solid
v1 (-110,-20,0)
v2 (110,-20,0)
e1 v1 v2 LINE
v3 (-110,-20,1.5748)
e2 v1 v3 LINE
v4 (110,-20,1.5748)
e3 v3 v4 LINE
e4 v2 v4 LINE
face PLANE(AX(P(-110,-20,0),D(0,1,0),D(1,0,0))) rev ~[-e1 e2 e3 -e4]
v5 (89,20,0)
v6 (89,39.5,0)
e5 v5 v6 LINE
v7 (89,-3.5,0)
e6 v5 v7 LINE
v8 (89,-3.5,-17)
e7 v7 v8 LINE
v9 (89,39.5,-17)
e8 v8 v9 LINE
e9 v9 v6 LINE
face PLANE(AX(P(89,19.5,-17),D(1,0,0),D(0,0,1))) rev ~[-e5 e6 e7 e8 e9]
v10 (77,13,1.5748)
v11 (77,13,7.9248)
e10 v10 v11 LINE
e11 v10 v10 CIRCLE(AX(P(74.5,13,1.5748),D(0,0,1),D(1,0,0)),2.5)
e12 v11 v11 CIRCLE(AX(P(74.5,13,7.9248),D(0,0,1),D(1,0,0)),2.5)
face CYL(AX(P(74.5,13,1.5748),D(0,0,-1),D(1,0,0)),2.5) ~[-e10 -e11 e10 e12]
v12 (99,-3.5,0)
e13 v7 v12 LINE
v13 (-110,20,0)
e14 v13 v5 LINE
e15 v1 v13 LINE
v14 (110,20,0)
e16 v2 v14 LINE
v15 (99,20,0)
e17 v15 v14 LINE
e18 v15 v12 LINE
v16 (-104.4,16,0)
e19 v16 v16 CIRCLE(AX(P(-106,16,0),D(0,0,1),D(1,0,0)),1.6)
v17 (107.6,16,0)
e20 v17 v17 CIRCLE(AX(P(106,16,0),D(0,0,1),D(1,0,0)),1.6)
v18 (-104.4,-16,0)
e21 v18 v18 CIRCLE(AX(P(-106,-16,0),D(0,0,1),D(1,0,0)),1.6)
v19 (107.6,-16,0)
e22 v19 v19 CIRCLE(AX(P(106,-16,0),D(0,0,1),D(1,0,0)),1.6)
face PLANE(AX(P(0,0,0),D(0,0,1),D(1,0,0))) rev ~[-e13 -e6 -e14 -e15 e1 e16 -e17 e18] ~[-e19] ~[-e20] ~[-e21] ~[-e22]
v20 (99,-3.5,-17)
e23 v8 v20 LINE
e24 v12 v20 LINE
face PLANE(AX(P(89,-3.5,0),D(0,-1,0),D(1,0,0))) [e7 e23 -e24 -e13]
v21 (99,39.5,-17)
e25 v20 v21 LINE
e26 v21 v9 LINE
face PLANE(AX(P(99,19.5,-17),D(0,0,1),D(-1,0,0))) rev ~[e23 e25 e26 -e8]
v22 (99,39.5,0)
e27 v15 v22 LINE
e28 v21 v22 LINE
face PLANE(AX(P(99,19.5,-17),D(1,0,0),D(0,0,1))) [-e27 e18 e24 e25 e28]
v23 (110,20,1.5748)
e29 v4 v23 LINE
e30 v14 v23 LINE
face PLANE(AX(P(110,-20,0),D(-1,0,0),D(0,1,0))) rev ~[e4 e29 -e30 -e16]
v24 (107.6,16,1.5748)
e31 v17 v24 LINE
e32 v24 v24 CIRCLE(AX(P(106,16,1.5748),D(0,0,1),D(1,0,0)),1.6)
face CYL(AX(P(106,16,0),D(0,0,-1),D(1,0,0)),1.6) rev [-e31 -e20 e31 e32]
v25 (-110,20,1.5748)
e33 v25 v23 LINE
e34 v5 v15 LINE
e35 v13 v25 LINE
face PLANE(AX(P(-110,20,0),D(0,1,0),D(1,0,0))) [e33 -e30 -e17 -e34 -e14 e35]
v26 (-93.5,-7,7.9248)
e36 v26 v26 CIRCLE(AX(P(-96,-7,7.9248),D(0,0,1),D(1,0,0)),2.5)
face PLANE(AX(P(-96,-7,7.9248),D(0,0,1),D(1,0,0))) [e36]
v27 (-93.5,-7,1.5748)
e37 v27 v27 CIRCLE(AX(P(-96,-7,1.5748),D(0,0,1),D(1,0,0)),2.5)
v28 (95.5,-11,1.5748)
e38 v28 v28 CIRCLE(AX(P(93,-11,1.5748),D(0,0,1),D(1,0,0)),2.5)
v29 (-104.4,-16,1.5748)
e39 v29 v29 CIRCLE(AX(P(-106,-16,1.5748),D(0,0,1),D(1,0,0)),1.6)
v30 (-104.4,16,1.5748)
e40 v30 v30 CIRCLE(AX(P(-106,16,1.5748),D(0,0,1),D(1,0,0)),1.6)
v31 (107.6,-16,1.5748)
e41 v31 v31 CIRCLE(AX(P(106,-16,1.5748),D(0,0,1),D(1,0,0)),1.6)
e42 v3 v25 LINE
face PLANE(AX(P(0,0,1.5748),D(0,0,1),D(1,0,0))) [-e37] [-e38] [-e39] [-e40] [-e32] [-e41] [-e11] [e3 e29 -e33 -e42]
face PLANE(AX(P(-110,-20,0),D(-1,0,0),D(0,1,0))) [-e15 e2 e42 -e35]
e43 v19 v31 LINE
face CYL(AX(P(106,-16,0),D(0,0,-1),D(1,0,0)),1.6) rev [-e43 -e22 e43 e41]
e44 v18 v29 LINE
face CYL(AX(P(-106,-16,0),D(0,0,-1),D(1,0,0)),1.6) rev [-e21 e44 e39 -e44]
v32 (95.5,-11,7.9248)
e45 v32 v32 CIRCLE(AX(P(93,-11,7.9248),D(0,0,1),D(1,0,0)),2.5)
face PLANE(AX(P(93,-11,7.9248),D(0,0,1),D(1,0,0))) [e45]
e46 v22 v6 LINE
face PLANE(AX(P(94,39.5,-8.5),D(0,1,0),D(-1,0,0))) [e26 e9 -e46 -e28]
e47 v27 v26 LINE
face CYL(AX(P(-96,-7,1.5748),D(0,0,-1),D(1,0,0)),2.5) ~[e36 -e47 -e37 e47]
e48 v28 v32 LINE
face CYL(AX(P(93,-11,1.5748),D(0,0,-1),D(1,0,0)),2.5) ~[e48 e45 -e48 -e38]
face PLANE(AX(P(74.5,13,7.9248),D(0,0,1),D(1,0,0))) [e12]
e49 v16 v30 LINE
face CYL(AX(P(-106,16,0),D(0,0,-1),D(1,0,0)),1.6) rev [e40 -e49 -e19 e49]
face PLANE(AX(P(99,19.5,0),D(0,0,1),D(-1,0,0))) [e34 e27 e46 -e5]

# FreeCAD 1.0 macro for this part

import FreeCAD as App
import Part
import Sketcher
from FreeCAD import Vector


def add_polygon(sketch, points):
    """Adds a closed chain of lines whose ends are joined by coincident constraints."""
    first, n = sketch.GeometryCount, len(points)
    for a, b in zip(points, points[1:] + points[:1]):
        sketch.addGeometry(Part.LineSegment(App.Vector(*a, 0), App.Vector(*b, 0)), False)
    for i in range(n):
        sketch.addConstraint(Sketcher.Constraint("Coincident", first + i, 2, first + (i + 1) % n, 1))

doc = App.newDocument("Part")
body = doc.addObject("PartDesign::Body", "Body")

# Sketch on XY plane
sketch1 = doc.addObject("Sketcher::SketchObject", "Sketch")
body.addObject(sketch1)
sketch1.AttachmentSupport = (doc.XY_Plane, [""])
sketch1.MapMode = "FlatFace"
add_polygon(sketch1, [(-110, 20), (-110, -20), (110, -20), (110, 20)])  # lines 0-3
sketch1.addGeometry(Part.Circle(Vector(-106, -16, 0), Vector(0, 0, 1), 1.6), False)  # 4
sketch1.addGeometry(Part.Circle(Vector(106, -16, 0), Vector(0, 0, 1), 1.6), False)  # 5
sketch1.addGeometry(Part.Circle(Vector(-106, 16, 0), Vector(0, 0, 1), 1.6), False)  # 6
sketch1.addGeometry(Part.Circle(Vector(106, 16, 0), Vector(0, 0, 1), 1.6), False)  # 7
sketch1.addConstraint(Sketcher.Constraint("Vertical", 0))
sketch1.addConstraint(Sketcher.Constraint("Horizontal", 1))
sketch1.addConstraint(Sketcher.Constraint("Vertical", 2))
sketch1.addConstraint(Sketcher.Constraint("Horizontal", 3))
sketch1.addConstraint(Sketcher.Constraint("Equal", 4, 5))
sketch1.addConstraint(Sketcher.Constraint("Equal", 5, 6))
sketch1.addConstraint(Sketcher.Constraint("Equal", 6, 7))
sketch1.addConstraint(Sketcher.Constraint("Symmetric", 5, 3, 6, 3, -1, 1))
sketch1.addConstraint(Sketcher.Constraint("Symmetric", 4, 3, 7, 3, -1, 1))
sketch1.addConstraint(Sketcher.Constraint("Symmetric", 0, 2, 2, 2, -1, 1))
sketch1.addConstraint(Sketcher.Constraint("Symmetric", 4, 3, 5, 3, -2))
sketch1.addConstraint(Sketcher.Constraint("Diameter", 4, 3.2))
sketch1.addConstraint(Sketcher.Constraint("DistanceX", 1, 1, 1, 2, 220.0))
sketch1.addConstraint(Sketcher.Constraint("DistanceY", 0, 2, 0, 1, 40.0))
sketch1.addConstraint(Sketcher.Constraint("DistanceX", 4, 3, -1, 1, 106.0))
sketch1.addConstraint(Sketcher.Constraint("DistanceY", 4, 3, -1, 1, 16.0))
pad1 = doc.addObject("PartDesign::Pad", "Pad")
body.addObject(pad1)
pad1.Profile = sketch1
pad1.Length = 1.5748

# Sketch on XY plane
sketch2 = doc.addObject("Sketcher::SketchObject", "Sketch001")
body.addObject(sketch2)
sketch2.AttachmentSupport = (doc.XY_Plane, [""])
sketch2.MapMode = "FlatFace"
add_polygon(sketch2, [(89, -4), (89, 20), (99, 20), (99, -4)])  # lines 0-3
sketch2.addConstraint(Sketcher.Constraint("Vertical", 0))
sketch2.addConstraint(Sketcher.Constraint("Horizontal", 1))
sketch2.addConstraint(Sketcher.Constraint("Vertical", 2))
sketch2.addConstraint(Sketcher.Constraint("Horizontal", 3))
sketch2.addConstraint(Sketcher.Constraint("DistanceX", 1, 1, 1, 2, 10.0))
sketch2.addConstraint(Sketcher.Constraint("DistanceY", 0, 1, 0, 2, 23.0))
sketch2.addConstraint(Sketcher.Constraint("DistanceX", -1, 1, 0, 2, 89.0))
sketch2.addConstraint(Sketcher.Constraint("DistanceY", -1, 1, 0, 2, 19.5))
pad2 = doc.addObject("PartDesign::Pad", "Pad001")
body.addObject(pad2)
pad2.Profile = sketch2
pad2.Length = 17
pad2.Reversed = True

# Sketch on XZ plane
sketch3 = doc.addObject("Sketcher::SketchObject", "Sketch002")
body.addObject(sketch3)
sketch3.AttachmentSupport = (doc.XZ_Plane, [""])
sketch3.MapMode = "FlatFace"
sketch3.AttachmentOffset = App.Placement(Vector(0, 0, -19.5), App.Rotation())
add_polygon(sketch3, [(99, 0), (99, -17), (89, -17), (89, 0)])  # lines 0-3
sketch3.addConstraint(Sketcher.Constraint("Vertical", 0))
sketch3.addConstraint(Sketcher.Constraint("Horizontal", 1))
sketch3.addConstraint(Sketcher.Constraint("Vertical", 2))
sketch3.addConstraint(Sketcher.Constraint("Horizontal", 3))
sketch3.addConstraint(Sketcher.Constraint("PointOnObject", 2, 2, -1))
sketch3.addConstraint(Sketcher.Constraint("DistanceX", 1, 2, 1, 1, 10.0))
sketch3.addConstraint(Sketcher.Constraint("DistanceY", 0, 2, 0, 1, 17.0))
sketch3.addConstraint(Sketcher.Constraint("DistanceX", -1, 1, 0, 2, 99.0))
pad3 = doc.addObject("PartDesign::Pad", "Pad002")
body.addObject(pad3)
pad3.Profile = sketch3
pad3.Length = 20
pad3.Reversed = True

# Sketch on XY plane
sketch4 = doc.addObject("Sketcher::SketchObject", "Sketch003")
body.addObject(sketch4)
sketch4.AttachmentSupport = (doc.XY_Plane, [""])
sketch4.MapMode = "FlatFace"
sketch4.AttachmentOffset = App.Placement(Vector(0, 0, 1.5748), App.Rotation())
sketch4.addGeometry(Part.Circle(Vector(93, -11, 0), Vector(0, 0, 1), 2.5), False)
sketch4.addGeometry(Part.Circle(Vector(-96, -7, 0), Vector(0, 0, 1), 2.5), False)
sketch4.addGeometry(Part.Circle(Vector(74.5, 13, 0), Vector(0, 0, 1), 2.5), False)
sketch4.addConstraint(Sketcher.Constraint("Equal", 0, 1))
sketch4.addConstraint(Sketcher.Constraint("Equal", 1, 2))
sketch4.addConstraint(Sketcher.Constraint("Diameter", 0, 5.0))
sketch4.addConstraint(Sketcher.Constraint("DistanceX", -1, 1, 0, 3, 93.0))
sketch4.addConstraint(Sketcher.Constraint("DistanceY", 0, 3, -1, 1, 11.0))
sketch4.addConstraint(Sketcher.Constraint("DistanceX", 1, 3, -1, 1, 96.0))
sketch4.addConstraint(Sketcher.Constraint("DistanceY", 1, 3, -1, 1, 7.0))
sketch4.addConstraint(Sketcher.Constraint("DistanceY", -1, 1, 2, 3, 13.0))
sketch4.addConstraint(Sketcher.Constraint("DistanceX", -1, 1, 2, 3, 74.5))
pad4 = doc.addObject("PartDesign::Pad", "Pad003")
body.addObject(pad4)
pad4.Profile = sketch4
pad4.Length = 6.35

doc.recompute()
